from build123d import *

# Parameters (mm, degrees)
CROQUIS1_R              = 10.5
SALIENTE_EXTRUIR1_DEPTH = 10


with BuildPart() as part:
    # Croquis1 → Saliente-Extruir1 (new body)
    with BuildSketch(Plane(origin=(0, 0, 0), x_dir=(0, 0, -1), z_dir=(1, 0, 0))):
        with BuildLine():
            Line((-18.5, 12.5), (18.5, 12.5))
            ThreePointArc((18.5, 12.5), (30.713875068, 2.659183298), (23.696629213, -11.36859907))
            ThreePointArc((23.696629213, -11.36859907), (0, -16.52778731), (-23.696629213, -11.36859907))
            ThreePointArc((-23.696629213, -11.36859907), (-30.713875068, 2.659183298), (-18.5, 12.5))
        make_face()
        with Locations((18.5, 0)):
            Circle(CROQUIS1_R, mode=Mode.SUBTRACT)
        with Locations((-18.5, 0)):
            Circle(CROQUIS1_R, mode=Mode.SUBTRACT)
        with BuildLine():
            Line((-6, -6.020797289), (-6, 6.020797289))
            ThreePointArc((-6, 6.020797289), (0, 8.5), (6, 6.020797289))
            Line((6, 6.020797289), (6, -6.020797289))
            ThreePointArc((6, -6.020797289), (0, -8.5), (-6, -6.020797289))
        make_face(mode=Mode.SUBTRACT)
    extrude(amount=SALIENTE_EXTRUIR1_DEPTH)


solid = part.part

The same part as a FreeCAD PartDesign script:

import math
import FreeCAD as App
import Part
import Sketcher

V = App.Vector
Q = App.Units.Quantity

doc = App.newDocument("Part")
params = doc.addObject("Spreadsheet::Sheet", "Params")
for row, (alias, value) in enumerate([
    ("sketch1_diameter", "21 mm"),
    ("sketch1_radius", "57 mm"),
    ("sketch1_radius2", "12.5 mm"),
    ("sketch1_radius3", "8.5 mm"),
    ("sketch1_height", "37 mm"),
    ("pad1_length", "10 mm"),
], start=1):
    params.set(f"A{row}", alias)
    params.set(f"B{row}", "=" + value)
    params.setAlias(f"B{row}", alias)

body = doc.addObject("PartDesign::Body", "Body")

sketch1 = body.newObject("Sketcher::SketchObject", "Sketch")
sketch1.AttachmentSupport = (doc.getObject("YZ_Plane"), [""])
sketch1.MapMode = "FlatFace"
sketch1.addGeometry([
    Part.LineSegment(V(12, -18, 0), V(12, 18, 0)),
    Part.ArcOfCircle(Part.Circle(V(0, 18, 0), V(0, 0, 1), 12), math.radians(0), math.radians(155)),
    Part.ArcOfCircle(Part.Circle(V(40, 0, 0), V(0, 0, 1), 57), math.radians(155), math.radians(205)),
    Part.ArcOfCircle(Part.Circle(V(0, -18, 0), V(0, 0, 1), 12), math.radians(-155), math.radians(0)),
    Part.Circle(V(0, -18, 0), V(0, 0, 1), 10),
    Part.LineSegment(V(-6, 6, 0), V(6, 6, 0)),
    Part.ArcOfCircle(Part.Circle(V(0, 0, 0), V(0, 0, 1), 8), math.radians(-45), math.radians(45)),
    Part.LineSegment(V(6, -6, 0), V(-6, -6, 0)),
    Part.ArcOfCircle(Part.Circle(V(0, 0, 0), V(0, 0, 1), 8), math.radians(135), math.radians(225)),
    Part.Circle(V(0, 18, 0), V(0, 0, 1), 10),
], False)
sketch1.addConstraint([
    Sketcher.Constraint("Tangent", 0, 2, 1, 1),
    Sketcher.Constraint("Tangent", 1, 2, 2, 1),
    Sketcher.Constraint("Tangent", 2, 2, 3, 1),
    Sketcher.Constraint("Tangent", 3, 2, 0, 1),
    Sketcher.Constraint("Coincident", 5, 2, 6, 2),
    Sketcher.Constraint("Coincident", 6, 1, 7, 1),
    Sketcher.Constraint("Coincident", 7, 2, 8, 2),
    Sketcher.Constraint("Coincident", 8, 1, 5, 1),
    Sketcher.Constraint("Vertical", 0),
    Sketcher.Constraint("Horizontal", 5),
    Sketcher.Constraint("Horizontal", 7),
    Sketcher.Constraint("Coincident", 6, 3, -1, 1),
    Sketcher.Constraint("Coincident", 8, 3, -1, 1),
    Sketcher.Constraint("Coincident", 4, 3, 3, 3),
    Sketcher.Constraint("Coincident", 9, 3, 1, 3),
    Sketcher.Constraint("Equal", 1, 3),
    Sketcher.Constraint("Equal", 6, 8),
    Sketcher.Constraint("Equal", 4, 9),
    Sketcher.Constraint("Symmetric", 1, 3, 3, 3, -1, 1),
    Sketcher.Constraint("Vertical", 5, 2, 6, 1),
    Sketcher.Constraint("Diameter", 4, Q("21 mm")),
    Sketcher.Constraint("Radius", 2, Q("57 mm")),
    Sketcher.Constraint("Radius", 1, Q("12.5 mm")),
    Sketcher.Constraint("Radius", 6, Q("8.5 mm")),
    Sketcher.Constraint("DistanceY", 0, 1, 0, 2, Q("37 mm")),
    Sketcher.Constraint("DistanceY", -1, 1, 5, 2, Q("6 mm")),
])
sketch1.setExpression("Constraints[20]", "Params.sketch1_diameter")
sketch1.setExpression("Constraints[21]", "Params.sketch1_radius")
sketch1.setExpression("Constraints[22]", "Params.sketch1_radius2")
sketch1.setExpression("Constraints[23]", "Params.sketch1_radius3")
sketch1.setExpression("Constraints[24]", "Params.sketch1_height")
pad1 = body.newObject("PartDesign::Pad", "Pad")
pad1.Profile = sketch1
pad1.setExpression("Length", "Params.pad1_length")

doc.recompute()
